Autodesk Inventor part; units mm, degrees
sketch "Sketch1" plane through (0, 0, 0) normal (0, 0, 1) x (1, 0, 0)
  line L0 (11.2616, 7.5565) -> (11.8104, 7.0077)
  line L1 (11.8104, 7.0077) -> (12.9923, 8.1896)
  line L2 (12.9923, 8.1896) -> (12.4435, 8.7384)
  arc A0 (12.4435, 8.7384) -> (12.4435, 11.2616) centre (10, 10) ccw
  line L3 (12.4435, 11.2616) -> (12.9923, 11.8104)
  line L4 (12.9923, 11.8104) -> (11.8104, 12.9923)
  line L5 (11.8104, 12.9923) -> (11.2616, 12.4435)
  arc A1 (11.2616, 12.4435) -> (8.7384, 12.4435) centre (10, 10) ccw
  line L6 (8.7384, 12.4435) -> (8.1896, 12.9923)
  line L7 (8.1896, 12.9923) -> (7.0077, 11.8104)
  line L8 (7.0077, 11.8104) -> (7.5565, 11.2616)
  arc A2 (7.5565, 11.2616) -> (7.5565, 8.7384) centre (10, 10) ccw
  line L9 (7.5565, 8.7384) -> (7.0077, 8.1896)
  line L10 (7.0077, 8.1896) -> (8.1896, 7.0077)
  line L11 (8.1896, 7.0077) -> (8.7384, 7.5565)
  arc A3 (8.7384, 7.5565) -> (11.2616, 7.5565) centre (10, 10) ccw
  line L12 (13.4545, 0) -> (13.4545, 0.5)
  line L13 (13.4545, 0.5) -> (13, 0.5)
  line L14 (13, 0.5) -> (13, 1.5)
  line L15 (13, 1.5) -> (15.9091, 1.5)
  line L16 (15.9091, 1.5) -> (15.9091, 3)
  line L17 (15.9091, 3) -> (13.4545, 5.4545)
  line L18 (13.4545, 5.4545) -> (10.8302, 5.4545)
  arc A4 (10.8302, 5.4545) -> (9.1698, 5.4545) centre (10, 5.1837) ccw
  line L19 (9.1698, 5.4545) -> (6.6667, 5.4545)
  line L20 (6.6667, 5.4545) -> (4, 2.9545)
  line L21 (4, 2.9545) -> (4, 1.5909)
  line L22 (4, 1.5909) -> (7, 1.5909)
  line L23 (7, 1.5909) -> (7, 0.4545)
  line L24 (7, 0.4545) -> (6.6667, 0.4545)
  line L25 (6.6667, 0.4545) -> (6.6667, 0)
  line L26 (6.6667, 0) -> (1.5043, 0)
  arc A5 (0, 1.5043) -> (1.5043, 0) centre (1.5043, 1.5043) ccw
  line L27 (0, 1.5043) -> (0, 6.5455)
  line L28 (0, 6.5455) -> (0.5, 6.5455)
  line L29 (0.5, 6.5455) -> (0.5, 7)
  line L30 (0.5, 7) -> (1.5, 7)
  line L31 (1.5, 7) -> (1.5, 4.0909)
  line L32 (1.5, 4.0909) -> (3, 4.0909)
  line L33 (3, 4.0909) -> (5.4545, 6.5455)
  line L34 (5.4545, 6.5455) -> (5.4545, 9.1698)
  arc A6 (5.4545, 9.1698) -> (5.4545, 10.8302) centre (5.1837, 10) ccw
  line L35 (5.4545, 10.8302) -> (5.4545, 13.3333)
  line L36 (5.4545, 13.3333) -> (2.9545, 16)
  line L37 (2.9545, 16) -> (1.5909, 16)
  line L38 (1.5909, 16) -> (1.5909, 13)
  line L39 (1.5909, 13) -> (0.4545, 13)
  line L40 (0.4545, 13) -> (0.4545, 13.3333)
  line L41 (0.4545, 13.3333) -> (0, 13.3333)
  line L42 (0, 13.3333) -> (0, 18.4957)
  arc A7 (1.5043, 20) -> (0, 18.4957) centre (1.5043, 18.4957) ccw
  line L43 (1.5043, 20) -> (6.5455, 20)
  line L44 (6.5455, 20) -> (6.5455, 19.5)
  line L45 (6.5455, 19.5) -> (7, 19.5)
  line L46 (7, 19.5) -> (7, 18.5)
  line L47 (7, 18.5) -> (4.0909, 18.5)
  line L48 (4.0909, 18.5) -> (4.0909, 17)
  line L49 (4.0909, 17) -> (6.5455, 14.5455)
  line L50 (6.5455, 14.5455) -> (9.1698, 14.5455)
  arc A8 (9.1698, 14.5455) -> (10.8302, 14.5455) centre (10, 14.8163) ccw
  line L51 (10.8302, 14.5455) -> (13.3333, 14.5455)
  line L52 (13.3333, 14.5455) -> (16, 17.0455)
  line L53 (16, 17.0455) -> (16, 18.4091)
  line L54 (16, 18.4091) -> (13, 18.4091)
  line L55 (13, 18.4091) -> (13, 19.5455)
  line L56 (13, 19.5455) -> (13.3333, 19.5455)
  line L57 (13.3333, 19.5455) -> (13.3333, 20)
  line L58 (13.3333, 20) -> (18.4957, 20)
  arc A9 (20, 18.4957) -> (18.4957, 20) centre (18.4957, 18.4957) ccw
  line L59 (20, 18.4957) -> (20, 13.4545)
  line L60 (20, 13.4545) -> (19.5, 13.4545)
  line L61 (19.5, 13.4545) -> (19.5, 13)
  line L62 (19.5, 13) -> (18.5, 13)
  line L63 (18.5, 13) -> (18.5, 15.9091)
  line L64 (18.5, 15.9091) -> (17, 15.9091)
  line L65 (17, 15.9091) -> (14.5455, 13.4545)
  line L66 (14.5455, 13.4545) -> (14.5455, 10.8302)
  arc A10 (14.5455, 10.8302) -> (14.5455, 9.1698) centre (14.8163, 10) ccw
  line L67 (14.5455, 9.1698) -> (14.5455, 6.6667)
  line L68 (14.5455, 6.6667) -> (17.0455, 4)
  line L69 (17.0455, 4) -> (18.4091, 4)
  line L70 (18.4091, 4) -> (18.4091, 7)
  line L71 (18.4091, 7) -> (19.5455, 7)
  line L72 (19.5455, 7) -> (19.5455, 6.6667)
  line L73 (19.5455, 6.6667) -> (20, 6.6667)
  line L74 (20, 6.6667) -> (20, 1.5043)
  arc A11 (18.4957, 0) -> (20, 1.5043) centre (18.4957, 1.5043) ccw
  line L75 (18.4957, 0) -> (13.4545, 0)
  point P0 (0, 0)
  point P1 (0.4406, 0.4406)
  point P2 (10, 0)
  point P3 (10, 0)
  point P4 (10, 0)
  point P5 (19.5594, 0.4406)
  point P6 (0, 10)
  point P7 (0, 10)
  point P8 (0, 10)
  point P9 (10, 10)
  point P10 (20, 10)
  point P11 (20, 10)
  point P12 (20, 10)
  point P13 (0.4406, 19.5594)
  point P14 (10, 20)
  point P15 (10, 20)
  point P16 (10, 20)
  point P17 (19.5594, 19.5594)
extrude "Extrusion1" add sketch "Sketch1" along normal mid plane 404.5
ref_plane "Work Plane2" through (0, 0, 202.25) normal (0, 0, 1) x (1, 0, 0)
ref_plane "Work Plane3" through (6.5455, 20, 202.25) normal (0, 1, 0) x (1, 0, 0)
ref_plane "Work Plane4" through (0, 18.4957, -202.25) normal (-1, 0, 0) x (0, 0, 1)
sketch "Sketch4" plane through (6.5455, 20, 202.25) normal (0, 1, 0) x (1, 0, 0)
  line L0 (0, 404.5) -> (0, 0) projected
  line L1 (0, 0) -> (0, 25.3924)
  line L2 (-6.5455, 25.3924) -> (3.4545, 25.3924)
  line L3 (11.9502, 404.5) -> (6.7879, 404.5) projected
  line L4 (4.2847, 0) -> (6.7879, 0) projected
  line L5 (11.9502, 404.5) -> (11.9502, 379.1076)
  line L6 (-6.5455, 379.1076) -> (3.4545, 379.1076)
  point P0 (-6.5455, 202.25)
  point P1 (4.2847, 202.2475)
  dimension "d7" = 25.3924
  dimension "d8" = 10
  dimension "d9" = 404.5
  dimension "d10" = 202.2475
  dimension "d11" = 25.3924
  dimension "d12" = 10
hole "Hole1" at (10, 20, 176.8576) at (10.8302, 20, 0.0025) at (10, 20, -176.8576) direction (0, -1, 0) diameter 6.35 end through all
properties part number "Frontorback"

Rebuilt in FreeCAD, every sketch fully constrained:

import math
import FreeCAD as App
import Part
import Sketcher
from FreeCAD import Vector

doc = App.newDocument("Part")
body = doc.addObject("PartDesign::Body", "Body")

# Sketch on XY plane
sketch1 = doc.addObject("Sketcher::SketchObject", "Sketch")
body.addObject(sketch1)
sketch1.AttachmentSupport = (doc.XY_Plane, [""])
sketch1.MapMode = "FlatFace"
sketch1.addGeometry([
    Part.LineSegment(Vector(13.45, 0.5, 0), Vector(13.45, 0, 0)),  # 0
    Part.LineSegment(Vector(13.45, 0, 0), Vector(18.5, 0, 0)),  # 1
    Part.ArcOfCircle(Part.Circle(Vector(18.5, 1.5, 0), Vector(0, 0, 1), 1.5), math.radians(-90), math.radians(0)),  # 2
    Part.LineSegment(Vector(20, 1.5, 0), Vector(20, 6.67, 0)),  # 3
    Part.LineSegment(Vector(20, 6.67, 0), Vector(19.55, 6.67, 0)),  # 4
    Part.LineSegment(Vector(19.55, 6.67, 0), Vector(19.55, 7, 0)),  # 5
    Part.LineSegment(Vector(19.55, 7, 0), Vector(18.41, 7, 0)),  # 6
    Part.LineSegment(Vector(18.41, 7, 0), Vector(18.41, 4, 0)),  # 7
    Part.LineSegment(Vector(18.41, 4, 0), Vector(17.05, 4, 0)),  # 8
    Part.LineSegment(Vector(17.05, 4, 0), Vector(14.55, 6.67, 0)),  # 9
    Part.LineSegment(Vector(14.55, 6.67, 0), Vector(14.55, 9.17, 0)),  # 10
    Part.ArcOfCircle(Part.Circle(Vector(14.82, 10, 0), Vector(0, 0, 1), 0.87), math.radians(108), math.radians(252)),  # 11
    Part.LineSegment(Vector(14.55, 10.83, 0), Vector(14.55, 13.45, 0)),  # 12
    Part.LineSegment(Vector(14.55, 13.45, 0), Vector(17, 15.91, 0)),  # 13
    Part.LineSegment(Vector(17, 15.91, 0), Vector(18.5, 15.91, 0)),  # 14
    Part.LineSegment(Vector(18.5, 15.91, 0), Vector(18.5, 13, 0)),  # 15
    Part.LineSegment(Vector(18.5, 13, 0), Vector(19.5, 13, 0)),  # 16
    Part.LineSegment(Vector(19.5, 13, 0), Vector(19.5, 13.45, 0)),  # 17
    Part.LineSegment(Vector(19.5, 13.45, 0), Vector(20, 13.45, 0)),  # 18
    Part.LineSegment(Vector(20, 13.45, 0), Vector(20, 18.5, 0)),  # 19
    Part.ArcOfCircle(Part.Circle(Vector(18.5, 18.5, 0), Vector(0, 0, 1), 1.5), math.radians(0), math.radians(90)),  # 20
    Part.LineSegment(Vector(18.5, 20, 0), Vector(13.33, 20, 0)),  # 21
    Part.LineSegment(Vector(13.33, 20, 0), Vector(13.33, 19.55, 0)),  # 22
    Part.LineSegment(Vector(13.33, 19.55, 0), Vector(13, 19.55, 0)),  # 23
    Part.LineSegment(Vector(13, 19.55, 0), Vector(13, 18.41, 0)),  # 24
    Part.LineSegment(Vector(13, 18.41, 0), Vector(16, 18.41, 0)),  # 25
    Part.LineSegment(Vector(16, 18.41, 0), Vector(16, 17.05, 0)),  # 26
    Part.LineSegment(Vector(16, 17.05, 0), Vector(13.33, 14.55, 0)),  # 27
    Part.LineSegment(Vector(13.33, 14.55, 0), Vector(10.83, 14.55, 0)),  # 28
    Part.ArcOfCircle(Part.Circle(Vector(10, 14.82, 0), Vector(0, 0, 1), 0.87), math.radians(-162), math.radians(-18)),  # 29
    Part.LineSegment(Vector(9.17, 14.55, 0), Vector(6.55, 14.55, 0)),  # 30
    Part.LineSegment(Vector(6.55, 14.55, 0), Vector(4.09, 17, 0)),  # 31
    Part.LineSegment(Vector(4.09, 17, 0), Vector(4.09, 18.5, 0)),  # 32
    Part.LineSegment(Vector(4.09, 18.5, 0), Vector(7, 18.5, 0)),  # 33
    Part.LineSegment(Vector(7, 18.5, 0), Vector(7, 19.5, 0)),  # 34
    Part.LineSegment(Vector(7, 19.5, 0), Vector(6.55, 19.5, 0)),  # 35
    Part.LineSegment(Vector(6.55, 19.5, 0), Vector(6.55, 20, 0)),  # 36
    Part.LineSegment(Vector(6.55, 20, 0), Vector(1.5, 20, 0)),  # 37
    Part.ArcOfCircle(Part.Circle(Vector(1.5, 18.5, 0), Vector(0, 0, 1), 1.5), math.radians(90), math.radians(180)),  # 38
    Part.LineSegment(Vector(0, 18.5, 0), Vector(0, 13.33, 0)),  # 39
    Part.LineSegment(Vector(0, 13.33, 0), Vector(0.45, 13.33, 0)),  # 40
    Part.LineSegment(Vector(0.45, 13.33, 0), Vector(0.45, 13, 0)),  # 41
    Part.LineSegment(Vector(0.45, 13, 0), Vector(1.59, 13, 0)),  # 42
    Part.LineSegment(Vector(1.59, 13, 0), Vector(1.59, 16, 0)),  # 43
    Part.LineSegment(Vector(1.59, 16, 0), Vector(2.95, 16, 0)),  # 44
    Part.LineSegment(Vector(2.95, 16, 0), Vector(5.45, 13.33, 0)),  # 45
    Part.LineSegment(Vector(5.45, 13.33, 0), Vector(5.45, 10.83, 0)),  # 46
    Part.ArcOfCircle(Part.Circle(Vector(5.18, 10, 0), Vector(0, 0, 1), 0.87), math.radians(-72), math.radians(72)),  # 47
    Part.LineSegment(Vector(5.45, 9.17, 0), Vector(5.45, 6.55, 0)),  # 48
    Part.LineSegment(Vector(5.45, 6.55, 0), Vector(3, 4.09, 0)),  # 49
    Part.LineSegment(Vector(3, 4.09, 0), Vector(1.5, 4.09, 0)),  # 50
    Part.LineSegment(Vector(1.5, 4.09, 0), Vector(1.5, 7, 0)),  # 51
    Part.LineSegment(Vector(1.5, 7, 0), Vector(0.5, 7, 0)),  # 52
    Part.LineSegment(Vector(0.5, 7, 0), Vector(0.5, 6.55, 0)),  # 53
    Part.LineSegment(Vector(0.5, 6.55, 0), Vector(0, 6.55, 0)),  # 54
    Part.LineSegment(Vector(0, 6.55, 0), Vector(0, 1.5, 0)),  # 55
    Part.ArcOfCircle(Part.Circle(Vector(1.5, 1.5, 0), Vector(0, 0, 1), 1.5), math.radians(180), math.radians(270)),  # 56
    Part.LineSegment(Vector(1.5, 0, 0), Vector(6.67, 0, 0)),  # 57
    Part.LineSegment(Vector(6.67, 0, 0), Vector(6.67, 0.45, 0)),  # 58
    Part.LineSegment(Vector(6.67, 0.45, 0), Vector(7, 0.45, 0)),  # 59
    Part.LineSegment(Vector(7, 0.45, 0), Vector(7, 1.59, 0)),  # 60
    Part.LineSegment(Vector(7, 1.59, 0), Vector(4, 1.59, 0)),  # 61
    Part.LineSegment(Vector(4, 1.59, 0), Vector(4, 2.95, 0)),  # 62
    Part.LineSegment(Vector(4, 2.95, 0), Vector(6.67, 5.45, 0)),  # 63
    Part.LineSegment(Vector(6.67, 5.45, 0), Vector(9.17, 5.45, 0)),  # 64
    Part.ArcOfCircle(Part.Circle(Vector(10, 5.18, 0), Vector(0, 0, 1), 0.87), math.radians(18), math.radians(162)),  # 65
    Part.LineSegment(Vector(10.83, 5.45, 0), Vector(13.45, 5.45, 0)),  # 66
    Part.LineSegment(Vector(13.45, 5.45, 0), Vector(15.91, 3, 0)),  # 67
    Part.LineSegment(Vector(15.91, 3, 0), Vector(15.91, 1.5, 0)),  # 68
    Part.LineSegment(Vector(15.91, 1.5, 0), Vector(13, 1.5, 0)),  # 69
    Part.LineSegment(Vector(13, 1.5, 0), Vector(13, 0.5, 0)),  # 70
    Part.LineSegment(Vector(13, 0.5, 0), Vector(13.45, 0.5, 0)),  # 71
    Part.LineSegment(Vector(11.81, 7.01, 0), Vector(11.26, 7.56, 0)),  # 72
    Part.ArcOfCircle(Part.Circle(Vector(10, 10, 0), Vector(0, 0, 1), 2.75), math.radians(-117), math.radians(-63)),  # 73
    Part.LineSegment(Vector(8.74, 7.56, 0), Vector(8.19, 7.01, 0)),  # 74
    Part.LineSegment(Vector(8.19, 7.01, 0), Vector(7.01, 8.19, 0)),  # 75
    Part.LineSegment(Vector(7.01, 8.19, 0), Vector(7.56, 8.74, 0)),  # 76
    Part.ArcOfCircle(Part.Circle(Vector(10, 10, 0), Vector(0, 0, 1), 2.75), math.radians(153), math.radians(207)),  # 77
    Part.LineSegment(Vector(7.56, 11.26, 0), Vector(7.01, 11.81, 0)),  # 78
    Part.LineSegment(Vector(7.01, 11.81, 0), Vector(8.19, 12.99, 0)),  # 79
    Part.LineSegment(Vector(8.19, 12.99, 0), Vector(8.74, 12.44, 0)),  # 80
    Part.ArcOfCircle(Part.Circle(Vector(10, 10, 0), Vector(0, 0, 1), 2.75), math.radians(63), math.radians(117)),  # 81
    Part.LineSegment(Vector(11.26, 12.44, 0), Vector(11.81, 12.99, 0)),  # 82
    Part.LineSegment(Vector(11.81, 12.99, 0), Vector(12.99, 11.81, 0)),  # 83
    Part.LineSegment(Vector(12.99, 11.81, 0), Vector(12.44, 11.26, 0)),  # 84
    Part.ArcOfCircle(Part.Circle(Vector(10, 10, 0), Vector(0, 0, 1), 2.75), math.radians(-27), math.radians(27)),  # 85
    Part.LineSegment(Vector(12.44, 8.74, 0), Vector(12.99, 8.19, 0)),  # 86
    Part.LineSegment(Vector(12.99, 8.19, 0), Vector(11.81, 7.01, 0)),  # 87
], False)
sketch1.addConstraint([
    Sketcher.Constraint("Coincident", 0, 2, 1, 1),
    Sketcher.Constraint("Tangent", 1, 2, 2, 1),
    Sketcher.Constraint("Tangent", 2, 2, 3, 1),
    Sketcher.Constraint("Coincident", 3, 2, 4, 1),
    Sketcher.Constraint("Coincident", 4, 2, 5, 1),
    Sketcher.Constraint("Coincident", 5, 2, 6, 1),
    Sketcher.Constraint("Coincident", 6, 2, 7, 1),
    Sketcher.Constraint("Coincident", 7, 2, 8, 1),
    Sketcher.Constraint("Coincident", 8, 2, 9, 1),
    Sketcher.Constraint("Coincident", 9, 2, 10, 1),
    Sketcher.Constraint("Coincident", 10, 2, 11, 2),
    Sketcher.Constraint("Coincident", 11, 1, 12, 1),
    Sketcher.Constraint("Coincident", 12, 2, 13, 1),
    Sketcher.Constraint("Coincident", 13, 2, 14, 1),
    Sketcher.Constraint("Coincident", 14, 2, 15, 1),
    Sketcher.Constraint("Coincident", 15, 2, 16, 1),
    Sketcher.Constraint("Coincident", 16, 2, 17, 1),
    Sketcher.Constraint("Coincident", 17, 2, 18, 1),
    Sketcher.Constraint("Coincident", 18, 2, 19, 1),
    Sketcher.Constraint("Tangent", 19, 2, 20, 1),
    Sketcher.Constraint("Tangent", 20, 2, 21, 1),
    Sketcher.Constraint("Coincident", 21, 2, 22, 1),
    Sketcher.Constraint("Coincident", 22, 2, 23, 1),
    Sketcher.Constraint("Coincident", 23, 2, 24, 1),
    Sketcher.Constraint("Coincident", 24, 2, 25, 1),
    Sketcher.Constraint("Coincident", 25, 2, 26, 1),
    Sketcher.Constraint("Coincident", 26, 2, 27, 1),
    Sketcher.Constraint("Coincident", 27, 2, 28, 1),
    Sketcher.Constraint("Coincident", 28, 2, 29, 2),
    Sketcher.Constraint("Coincident", 29, 1, 30, 1),
    Sketcher.Constraint("Coincident", 30, 2, 31, 1),
    Sketcher.Constraint("Coincident", 31, 2, 32, 1),
    Sketcher.Constraint("Coincident", 32, 2, 33, 1),
    Sketcher.Constraint("Coincident", 33, 2, 34, 1),
    Sketcher.Constraint("Coincident", 34, 2, 35, 1),
    Sketcher.Constraint("Coincident", 35, 2, 36, 1),
    Sketcher.Constraint("Coincident", 36, 2, 37, 1),
    Sketcher.Constraint("Tangent", 37, 2, 38, 1),
    Sketcher.Constraint("Tangent", 38, 2, 39, 1),
    Sketcher.Constraint("Coincident", 39, 2, 40, 1),
    Sketcher.Constraint("Coincident", 40, 2, 41, 1),
    Sketcher.Constraint("Coincident", 41, 2, 42, 1),
    Sketcher.Constraint("Coincident", 42, 2, 43, 1),
    Sketcher.Constraint("Coincident", 43, 2, 44, 1),
    Sketcher.Constraint("Coincident", 44, 2, 45, 1),
    Sketcher.Constraint("Coincident", 45, 2, 46, 1),
    Sketcher.Constraint("Coincident", 46, 2, 47, 2),
    Sketcher.Constraint("Coincident", 47, 1, 48, 1),
    Sketcher.Constraint("Coincident", 48, 2, 49, 1),
    Sketcher.Constraint("Coincident", 49, 2, 50, 1),
    Sketcher.Constraint("Coincident", 50, 2, 51, 1),
    Sketcher.Constraint("Coincident", 51, 2, 52, 1),
    Sketcher.Constraint("Coincident", 52, 2, 53, 1),
    Sketcher.Constraint("Coincident", 53, 2, 54, 1),
    Sketcher.Constraint("Coincident", 54, 2, 55, 1),
    Sketcher.Constraint("Tangent", 55, 2, 56, 1),
    Sketcher.Constraint("Tangent", 56, 2, 57, 1),
    Sketcher.Constraint("Coincident", 57, 2, 58, 1),
    Sketcher.Constraint("Coincident", 58, 2, 59, 1),
    Sketcher.Constraint("Coincident", 59, 2, 60, 1),
    Sketcher.Constraint("Coincident", 60, 2, 61, 1),
    Sketcher.Constraint("Coincident", 61, 2, 62, 1),
    Sketcher.Constraint("Coincident", 62, 2, 63, 1),
    Sketcher.Constraint("Coincident", 63, 2, 64, 1),
    Sketcher.Constraint("Coincident", 64, 2, 65, 2),
    Sketcher.Constraint("Coincident", 65, 1, 66, 1),
    Sketcher.Constraint("Coincident", 66, 2, 67, 1),
    Sketcher.Constraint("Coincident", 67, 2, 68, 1),
    Sketcher.Constraint("Coincident", 68, 2, 69, 1),
    Sketcher.Constraint("Coincident", 69, 2, 70, 1),
    Sketcher.Constraint("Coincident", 70, 2, 71, 1),
    Sketcher.Constraint("Coincident", 71, 2, 0, 1),
    Sketcher.Constraint("Coincident", 72, 2, 73, 2),
    Sketcher.Constraint("Coincident", 73, 1, 74, 1),
    Sketcher.Constraint("Coincident", 74, 2, 75, 1),
    Sketcher.Constraint("Coincident", 75, 2, 76, 1),
    Sketcher.Constraint("Coincident", 76, 2, 77, 2),
    Sketcher.Constraint("Coincident", 77, 1, 78, 1),
    Sketcher.Constraint("Coincident", 78, 2, 79, 1),
    Sketcher.Constraint("Coincident", 79, 2, 80, 1),
    Sketcher.Constraint("Coincident", 80, 2, 81, 2),
    Sketcher.Constraint("Coincident", 81, 1, 82, 1),
    Sketcher.Constraint("Coincident", 82, 2, 83, 1),
    Sketcher.Constraint("Coincident", 83, 2, 84, 1),
    Sketcher.Constraint("Coincident", 84, 2, 85, 2),
    Sketcher.Constraint("Coincident", 85, 1, 86, 1),
    Sketcher.Constraint("Coincident", 86, 2, 87, 1),
    Sketcher.Constraint("Coincident", 87, 2, 72, 1),
    Sketcher.Constraint("Vertical", 0),
    Sketcher.Constraint("Horizontal", 1),
    Sketcher.Constraint("Vertical", 3),
    Sketcher.Constraint("Horizontal", 4),
    Sketcher.Constraint("Vertical", 5),
    Sketcher.Constraint("Horizontal", 6),
    Sketcher.Constraint("Vertical", 7),
    Sketcher.Constraint("Horizontal", 8),
    Sketcher.Constraint("Vertical", 10),
    Sketcher.Constraint("Vertical", 12),
    Sketcher.Constraint("Horizontal", 14),
    Sketcher.Constraint("Vertical", 15),
    Sketcher.Constraint("Horizontal", 16),
    Sketcher.Constraint("Vertical", 17),
    Sketcher.Constraint("Horizontal", 18),
    Sketcher.Constraint("Vertical", 19),
    Sketcher.Constraint("Horizontal", 21),
    Sketcher.Constraint("Vertical", 22),
    Sketcher.Constraint("Horizontal", 23),
    Sketcher.Constraint("Vertical", 24),
    Sketcher.Constraint("Horizontal", 25),
    Sketcher.Constraint("Vertical", 26),
    Sketcher.Constraint("Horizontal", 28),
    Sketcher.Constraint("Horizontal", 30),
    Sketcher.Constraint("Vertical", 32),
    Sketcher.Constraint("Horizontal", 33),
    Sketcher.Constraint("Vertical", 34),
    Sketcher.Constraint("Horizontal", 35),
    Sketcher.Constraint("Vertical", 36),
    Sketcher.Constraint("Horizontal", 37),
    Sketcher.Constraint("Vertical", 39),
    Sketcher.Constraint("Horizontal", 40),
    Sketcher.Constraint("Vertical", 41),
    Sketcher.Constraint("Horizontal", 42),
    Sketcher.Constraint("Vertical", 43),
    Sketcher.Constraint("Horizontal", 44),
    Sketcher.Constraint("Vertical", 46),
    Sketcher.Constraint("Vertical", 48),
    Sketcher.Constraint("Horizontal", 50),
    Sketcher.Constraint("Vertical", 51),
    Sketcher.Constraint("Horizontal", 52),
    Sketcher.Constraint("Vertical", 53),
    Sketcher.Constraint("Horizontal", 54),
    Sketcher.Constraint("Vertical", 55),
    Sketcher.Constraint("Horizontal", 57),
    Sketcher.Constraint("Vertical", 58),
    Sketcher.Constraint("Horizontal", 59),
    Sketcher.Constraint("Vertical", 60),
    Sketcher.Constraint("Horizontal", 61),
    Sketcher.Constraint("Vertical", 62),
    Sketcher.Constraint("Horizontal", 64),
    Sketcher.Constraint("Horizontal", 66),
    Sketcher.Constraint("Vertical", 68),
    Sketcher.Constraint("Horizontal", 69),
    Sketcher.Constraint("Vertical", 70),
    Sketcher.Constraint("Horizontal", 71),
    Sketcher.Constraint("Coincident", 77, 3, 73, 3),
    Sketcher.Constraint("Coincident", 81, 3, 73, 3),
    Sketcher.Constraint("Coincident", 85, 3, 73, 3),
    Sketcher.Constraint("Equal", 2, 20),
    Sketcher.Constraint("Equal", 11, 29),
    Sketcher.Constraint("Equal", 20, 38),
    Sketcher.Constraint("Equal", 29, 47),
    Sketcher.Constraint("Equal", 38, 56),
    Sketcher.Constraint("Equal", 47, 65),
    Sketcher.Constraint("Equal", 73, 77),
    Sketcher.Constraint("Equal", 77, 81),
    Sketcher.Constraint("Equal", 81, 85),
    Sketcher.Constraint("PointOnObject", 0, 2, -1),
    Sketcher.Constraint("PointOnObject", 38, 2, -2),
    Sketcher.Constraint("PointOnObject", 54, 2, -2),
    Sketcher.Constraint("PointOnObject", 56, 2, -1),
    Sketcher.Constraint("Perpendicular", 9, 27),
    Sketcher.Constraint("Perpendicular", 13, 31),
    Sketcher.Constraint("Perpendicular", 27, 45),
    Sketcher.Constraint("Perpendicular", 31, 49),
    Sketcher.Constraint("Perpendicular", 45, 63),
    Sketcher.Constraint("Perpendicular", 49, 67),
    Sketcher.Constraint("Parallel", 67, 72),
    Sketcher.Constraint("Perpendicular", 72, 74),
    Sketcher.Constraint("Perpendicular", 74, 75),
    Sketcher.Constraint("Perpendicular", 75, 76),
    Sketcher.Constraint("Perpendicular", 76, 78),
    Sketcher.Constraint("Perpendicular", 78, 79),
    Sketcher.Constraint("Perpendicular", 79, 80),
    Sketcher.Constraint("Perpendicular", 80, 82),
    Sketcher.Constraint("Perpendicular", 82, 83),
    Sketcher.Constraint("Perpendicular", 83, 84),
    Sketcher.Constraint("Perpendicular", 84, 86),
    Sketcher.Constraint("Perpendicular", 86, 87),
    Sketcher.Constraint("Horizontal", 20, 3, 38, 3),
    Sketcher.Constraint("Horizontal", 11, 3, 47, 3),
    Sketcher.Constraint("Horizontal", 47, 3, 73, 3),
    Sketcher.Constraint("Horizontal", 4, 2, 9, 2),
    Sketcher.Constraint("Horizontal", 12, 2, 17, 2),
    Sketcher.Constraint("Horizontal", 28, 2, 29, 1),
    Sketcher.Constraint("Horizontal", 16, 2, 41, 2),
    Sketcher.Constraint("Horizontal", 40, 2, 45, 2),
    Sketcher.Constraint("Horizontal", 11, 1, 46, 2),
    Sketcher.Constraint("Horizontal", 10, 2, 47, 1),
    Sketcher.Constraint("Horizontal", 6, 2, 51, 2),
    Sketcher.Constraint("Horizontal", 48, 2, 53, 2),
    Sketcher.Constraint("Horizontal", 64, 2, 65, 1),
    Sketcher.Constraint("Horizontal", 72, 2, 73, 1),
    Sketcher.Constraint("Horizontal", 80, 2, 81, 1),
    Sketcher.Constraint("Horizontal", 79, 2, 82, 2),
    Sketcher.Constraint("Horizontal", 78, 2, 83, 2),
    Sketcher.Constraint("Horizontal", 77, 1, 84, 2),
    Sketcher.Constraint("Horizontal", 76, 2, 85, 1),
    Sketcher.Constraint("Horizontal", 75, 2, 86, 2),
    Sketcher.Constraint("Vertical", 2, 3, 20, 3),
    Sketcher.Constraint("Vertical", 29, 3, 65, 3),
    Sketcher.Constraint("Vertical", 65, 3, 73, 3),
    Sketcher.Constraint("Vertical", 10, 2, 11, 1),
    Sketcher.Constraint("Vertical", 22, 2, 27, 2),
    Sketcher.Constraint("Vertical", 30, 2, 35, 2),
    Sketcher.Constraint("Vertical", 34, 2, 59, 2),
    Sketcher.Constraint("Vertical", 58, 2, 63, 2),
    Sketcher.Constraint("Vertical", 29, 1, 64, 2),
    Sketcher.Constraint("Vertical", 0, 2, 66, 2),
    Sketcher.Constraint("Vertical", 24, 2, 69, 2),
    Sketcher.Constraint("Vertical", 76, 2, 77, 1),
    Sketcher.Constraint("Vertical", 75, 2, 78, 2),
    Sketcher.Constraint("Vertical", 74, 2, 79, 2),
    Sketcher.Constraint("Equal", 4, 35),
    Sketcher.Constraint("Equal", 1, 37),
    Sketcher.Constraint("Equal", 35, 40),
    Sketcher.Constraint("Equal", 6, 42),
    Sketcher.Constraint("Equal", 8, 44),
    Sketcher.Constraint("Equal", 14, 50),
    Sketcher.Constraint("Equal", 16, 52),
    Sketcher.Constraint("Equal", 18, 54),
    Sketcher.Constraint("Equal", 21, 57),
    Sketcher.Constraint("Equal", 23, 59),
    Sketcher.Constraint("Equal", 25, 61),
    Sketcher.Constraint("Equal", 28, 64),
    Sketcher.Constraint("Equal", 33, 69),
    Sketcher.Constraint("Equal", 54, 0),
    Sketcher.Constraint("Equal", 57, 3),
    Sketcher.Constraint("Equal", 59, 5),
    Sketcher.Constraint("Equal", 61, 7),
    Sketcher.Constraint("Equal", 64, 10),
    Sketcher.Constraint("Equal", 66, 12),
    Sketcher.Constraint("Equal", 69, 15),
    Sketcher.Constraint("Equal", 71, 17),
    Sketcher.Constraint("Equal", 37, 19),
    Sketcher.Constraint("Equal", 17, 22),
    Sketcher.Constraint("Equal", 42, 24),
    Sketcher.Constraint("Equal", 44, 26),
    Sketcher.Constraint("Equal", 50, 32),
    Sketcher.Constraint("Equal", 52, 34),
    Sketcher.Constraint("Equal", 3, 39),
    Sketcher.Constraint("Equal", 7, 43),
    Sketcher.Constraint("Equal", 12, 48),
    Sketcher.Constraint("Equal", 53, 58),
    Sketcher.Constraint("Equal", 24, 60),
    Sketcher.Constraint("Equal", 26, 62),
    Sketcher.Constraint("Equal", 32, 68),
    Sketcher.Constraint("Equal", 74, 76),
    Sketcher.Constraint("DistanceX", 16, 1, 16, 2, 1.0),
    Sketcher.Constraint("DistanceX", 25, 1, 25, 2, 3.0),
    Sketcher.Constraint("Radius", 73, 2.75),
    Sketcher.Constraint("DistanceX", 14, 1, 14, 2, 1.5),
    Sketcher.Constraint("DistanceX", 18, 1, 18, 2, 0.5),
    Sketcher.Constraint("DistanceY", -1, 1, 11, 3, 10.0),
    Sketcher.Constraint("DistanceX", -1, 1, 29, 3, 10.0),
    Sketcher.Constraint("DistanceY", -1, 1, 5, 2, 7.0),
    Sketcher.Constraint("Radius", 2, 1.5043),
    Sketcher.Constraint("Radius", 11, 0.8732),
    Sketcher.Constraint("DistanceX", 28, 2, 28, 1, 2.503),
    Sketcher.Constraint("DistanceX", 33, 1, 33, 2, 2.909),
    Sketcher.Constraint("DistanceX", 1, 1, 1, 2, 5.0412),
    Sketcher.Constraint("DistanceX", 6, 2, 6, 1, 1.1364),
    Sketcher.Constraint("DistanceX", 8, 2, 8, 1, 1.3636),
    Sketcher.Constraint("DistanceX", 21, 2, 21, 1, 5.1624),
    Sketcher.Constraint("Distance", 72, 0.7761),
    Sketcher.Constraint("Distance", 75, 1.6715),
])
pad1 = doc.addObject("PartDesign::Pad", "Pad")
body.addObject(pad1)
pad1.Profile = sketch1
pad1.Length = 404.5
pad1.Midplane = True

# Sketch on XZ plane
sketch2 = doc.addObject("Sketcher::SketchObject", "Sketch001")
body.addObject(sketch2)
sketch2.AttachmentSupport = (doc.XZ_Plane, [""])
sketch2.MapMode = "FlatFace"
sketch2.AttachmentOffset = App.Placement(Vector(0, 0, -20), App.Rotation())
sketch2.addGeometry([
    Part.Circle(Vector(10, 176.9, 0), Vector(0, 0, 1), 3.2),
    Part.Circle(Vector(10.8, 0, 0), Vector(0, 0, 1), 3.2),
    Part.Circle(Vector(10, -176.9, 0), Vector(0, 0, 1), 3.2),
], False)
sketch2.addConstraint([
    Sketcher.Constraint("Equal", 0, 1),
    Sketcher.Constraint("Equal", 1, 2),
    Sketcher.Constraint("Symmetric", 0, 3, 2, 3, -1),
    Sketcher.Constraint("Diameter", 0, 6.35),
    Sketcher.Constraint("DistanceX", -1, 1, 0, 3, 10.0),
    Sketcher.Constraint("DistanceY", 2, 3, 1, 3, 176.86),
    Sketcher.Constraint("DistanceY", 1, 3, 0, 3, 176.855),
    Sketcher.Constraint("DistanceX", -1, 1, 1, 3, 10.8302),
])
doc.recompute()
hole = doc.addObject("PartDesign::Hole", "Hole")
body.addObject(hole)
hole.Profile = sketch2
hole.ThreadType = "None"
hole.Diameter = 6.35
hole.DepthType = "ThroughAll"
hole.Reversed = True

doc.recompute()
